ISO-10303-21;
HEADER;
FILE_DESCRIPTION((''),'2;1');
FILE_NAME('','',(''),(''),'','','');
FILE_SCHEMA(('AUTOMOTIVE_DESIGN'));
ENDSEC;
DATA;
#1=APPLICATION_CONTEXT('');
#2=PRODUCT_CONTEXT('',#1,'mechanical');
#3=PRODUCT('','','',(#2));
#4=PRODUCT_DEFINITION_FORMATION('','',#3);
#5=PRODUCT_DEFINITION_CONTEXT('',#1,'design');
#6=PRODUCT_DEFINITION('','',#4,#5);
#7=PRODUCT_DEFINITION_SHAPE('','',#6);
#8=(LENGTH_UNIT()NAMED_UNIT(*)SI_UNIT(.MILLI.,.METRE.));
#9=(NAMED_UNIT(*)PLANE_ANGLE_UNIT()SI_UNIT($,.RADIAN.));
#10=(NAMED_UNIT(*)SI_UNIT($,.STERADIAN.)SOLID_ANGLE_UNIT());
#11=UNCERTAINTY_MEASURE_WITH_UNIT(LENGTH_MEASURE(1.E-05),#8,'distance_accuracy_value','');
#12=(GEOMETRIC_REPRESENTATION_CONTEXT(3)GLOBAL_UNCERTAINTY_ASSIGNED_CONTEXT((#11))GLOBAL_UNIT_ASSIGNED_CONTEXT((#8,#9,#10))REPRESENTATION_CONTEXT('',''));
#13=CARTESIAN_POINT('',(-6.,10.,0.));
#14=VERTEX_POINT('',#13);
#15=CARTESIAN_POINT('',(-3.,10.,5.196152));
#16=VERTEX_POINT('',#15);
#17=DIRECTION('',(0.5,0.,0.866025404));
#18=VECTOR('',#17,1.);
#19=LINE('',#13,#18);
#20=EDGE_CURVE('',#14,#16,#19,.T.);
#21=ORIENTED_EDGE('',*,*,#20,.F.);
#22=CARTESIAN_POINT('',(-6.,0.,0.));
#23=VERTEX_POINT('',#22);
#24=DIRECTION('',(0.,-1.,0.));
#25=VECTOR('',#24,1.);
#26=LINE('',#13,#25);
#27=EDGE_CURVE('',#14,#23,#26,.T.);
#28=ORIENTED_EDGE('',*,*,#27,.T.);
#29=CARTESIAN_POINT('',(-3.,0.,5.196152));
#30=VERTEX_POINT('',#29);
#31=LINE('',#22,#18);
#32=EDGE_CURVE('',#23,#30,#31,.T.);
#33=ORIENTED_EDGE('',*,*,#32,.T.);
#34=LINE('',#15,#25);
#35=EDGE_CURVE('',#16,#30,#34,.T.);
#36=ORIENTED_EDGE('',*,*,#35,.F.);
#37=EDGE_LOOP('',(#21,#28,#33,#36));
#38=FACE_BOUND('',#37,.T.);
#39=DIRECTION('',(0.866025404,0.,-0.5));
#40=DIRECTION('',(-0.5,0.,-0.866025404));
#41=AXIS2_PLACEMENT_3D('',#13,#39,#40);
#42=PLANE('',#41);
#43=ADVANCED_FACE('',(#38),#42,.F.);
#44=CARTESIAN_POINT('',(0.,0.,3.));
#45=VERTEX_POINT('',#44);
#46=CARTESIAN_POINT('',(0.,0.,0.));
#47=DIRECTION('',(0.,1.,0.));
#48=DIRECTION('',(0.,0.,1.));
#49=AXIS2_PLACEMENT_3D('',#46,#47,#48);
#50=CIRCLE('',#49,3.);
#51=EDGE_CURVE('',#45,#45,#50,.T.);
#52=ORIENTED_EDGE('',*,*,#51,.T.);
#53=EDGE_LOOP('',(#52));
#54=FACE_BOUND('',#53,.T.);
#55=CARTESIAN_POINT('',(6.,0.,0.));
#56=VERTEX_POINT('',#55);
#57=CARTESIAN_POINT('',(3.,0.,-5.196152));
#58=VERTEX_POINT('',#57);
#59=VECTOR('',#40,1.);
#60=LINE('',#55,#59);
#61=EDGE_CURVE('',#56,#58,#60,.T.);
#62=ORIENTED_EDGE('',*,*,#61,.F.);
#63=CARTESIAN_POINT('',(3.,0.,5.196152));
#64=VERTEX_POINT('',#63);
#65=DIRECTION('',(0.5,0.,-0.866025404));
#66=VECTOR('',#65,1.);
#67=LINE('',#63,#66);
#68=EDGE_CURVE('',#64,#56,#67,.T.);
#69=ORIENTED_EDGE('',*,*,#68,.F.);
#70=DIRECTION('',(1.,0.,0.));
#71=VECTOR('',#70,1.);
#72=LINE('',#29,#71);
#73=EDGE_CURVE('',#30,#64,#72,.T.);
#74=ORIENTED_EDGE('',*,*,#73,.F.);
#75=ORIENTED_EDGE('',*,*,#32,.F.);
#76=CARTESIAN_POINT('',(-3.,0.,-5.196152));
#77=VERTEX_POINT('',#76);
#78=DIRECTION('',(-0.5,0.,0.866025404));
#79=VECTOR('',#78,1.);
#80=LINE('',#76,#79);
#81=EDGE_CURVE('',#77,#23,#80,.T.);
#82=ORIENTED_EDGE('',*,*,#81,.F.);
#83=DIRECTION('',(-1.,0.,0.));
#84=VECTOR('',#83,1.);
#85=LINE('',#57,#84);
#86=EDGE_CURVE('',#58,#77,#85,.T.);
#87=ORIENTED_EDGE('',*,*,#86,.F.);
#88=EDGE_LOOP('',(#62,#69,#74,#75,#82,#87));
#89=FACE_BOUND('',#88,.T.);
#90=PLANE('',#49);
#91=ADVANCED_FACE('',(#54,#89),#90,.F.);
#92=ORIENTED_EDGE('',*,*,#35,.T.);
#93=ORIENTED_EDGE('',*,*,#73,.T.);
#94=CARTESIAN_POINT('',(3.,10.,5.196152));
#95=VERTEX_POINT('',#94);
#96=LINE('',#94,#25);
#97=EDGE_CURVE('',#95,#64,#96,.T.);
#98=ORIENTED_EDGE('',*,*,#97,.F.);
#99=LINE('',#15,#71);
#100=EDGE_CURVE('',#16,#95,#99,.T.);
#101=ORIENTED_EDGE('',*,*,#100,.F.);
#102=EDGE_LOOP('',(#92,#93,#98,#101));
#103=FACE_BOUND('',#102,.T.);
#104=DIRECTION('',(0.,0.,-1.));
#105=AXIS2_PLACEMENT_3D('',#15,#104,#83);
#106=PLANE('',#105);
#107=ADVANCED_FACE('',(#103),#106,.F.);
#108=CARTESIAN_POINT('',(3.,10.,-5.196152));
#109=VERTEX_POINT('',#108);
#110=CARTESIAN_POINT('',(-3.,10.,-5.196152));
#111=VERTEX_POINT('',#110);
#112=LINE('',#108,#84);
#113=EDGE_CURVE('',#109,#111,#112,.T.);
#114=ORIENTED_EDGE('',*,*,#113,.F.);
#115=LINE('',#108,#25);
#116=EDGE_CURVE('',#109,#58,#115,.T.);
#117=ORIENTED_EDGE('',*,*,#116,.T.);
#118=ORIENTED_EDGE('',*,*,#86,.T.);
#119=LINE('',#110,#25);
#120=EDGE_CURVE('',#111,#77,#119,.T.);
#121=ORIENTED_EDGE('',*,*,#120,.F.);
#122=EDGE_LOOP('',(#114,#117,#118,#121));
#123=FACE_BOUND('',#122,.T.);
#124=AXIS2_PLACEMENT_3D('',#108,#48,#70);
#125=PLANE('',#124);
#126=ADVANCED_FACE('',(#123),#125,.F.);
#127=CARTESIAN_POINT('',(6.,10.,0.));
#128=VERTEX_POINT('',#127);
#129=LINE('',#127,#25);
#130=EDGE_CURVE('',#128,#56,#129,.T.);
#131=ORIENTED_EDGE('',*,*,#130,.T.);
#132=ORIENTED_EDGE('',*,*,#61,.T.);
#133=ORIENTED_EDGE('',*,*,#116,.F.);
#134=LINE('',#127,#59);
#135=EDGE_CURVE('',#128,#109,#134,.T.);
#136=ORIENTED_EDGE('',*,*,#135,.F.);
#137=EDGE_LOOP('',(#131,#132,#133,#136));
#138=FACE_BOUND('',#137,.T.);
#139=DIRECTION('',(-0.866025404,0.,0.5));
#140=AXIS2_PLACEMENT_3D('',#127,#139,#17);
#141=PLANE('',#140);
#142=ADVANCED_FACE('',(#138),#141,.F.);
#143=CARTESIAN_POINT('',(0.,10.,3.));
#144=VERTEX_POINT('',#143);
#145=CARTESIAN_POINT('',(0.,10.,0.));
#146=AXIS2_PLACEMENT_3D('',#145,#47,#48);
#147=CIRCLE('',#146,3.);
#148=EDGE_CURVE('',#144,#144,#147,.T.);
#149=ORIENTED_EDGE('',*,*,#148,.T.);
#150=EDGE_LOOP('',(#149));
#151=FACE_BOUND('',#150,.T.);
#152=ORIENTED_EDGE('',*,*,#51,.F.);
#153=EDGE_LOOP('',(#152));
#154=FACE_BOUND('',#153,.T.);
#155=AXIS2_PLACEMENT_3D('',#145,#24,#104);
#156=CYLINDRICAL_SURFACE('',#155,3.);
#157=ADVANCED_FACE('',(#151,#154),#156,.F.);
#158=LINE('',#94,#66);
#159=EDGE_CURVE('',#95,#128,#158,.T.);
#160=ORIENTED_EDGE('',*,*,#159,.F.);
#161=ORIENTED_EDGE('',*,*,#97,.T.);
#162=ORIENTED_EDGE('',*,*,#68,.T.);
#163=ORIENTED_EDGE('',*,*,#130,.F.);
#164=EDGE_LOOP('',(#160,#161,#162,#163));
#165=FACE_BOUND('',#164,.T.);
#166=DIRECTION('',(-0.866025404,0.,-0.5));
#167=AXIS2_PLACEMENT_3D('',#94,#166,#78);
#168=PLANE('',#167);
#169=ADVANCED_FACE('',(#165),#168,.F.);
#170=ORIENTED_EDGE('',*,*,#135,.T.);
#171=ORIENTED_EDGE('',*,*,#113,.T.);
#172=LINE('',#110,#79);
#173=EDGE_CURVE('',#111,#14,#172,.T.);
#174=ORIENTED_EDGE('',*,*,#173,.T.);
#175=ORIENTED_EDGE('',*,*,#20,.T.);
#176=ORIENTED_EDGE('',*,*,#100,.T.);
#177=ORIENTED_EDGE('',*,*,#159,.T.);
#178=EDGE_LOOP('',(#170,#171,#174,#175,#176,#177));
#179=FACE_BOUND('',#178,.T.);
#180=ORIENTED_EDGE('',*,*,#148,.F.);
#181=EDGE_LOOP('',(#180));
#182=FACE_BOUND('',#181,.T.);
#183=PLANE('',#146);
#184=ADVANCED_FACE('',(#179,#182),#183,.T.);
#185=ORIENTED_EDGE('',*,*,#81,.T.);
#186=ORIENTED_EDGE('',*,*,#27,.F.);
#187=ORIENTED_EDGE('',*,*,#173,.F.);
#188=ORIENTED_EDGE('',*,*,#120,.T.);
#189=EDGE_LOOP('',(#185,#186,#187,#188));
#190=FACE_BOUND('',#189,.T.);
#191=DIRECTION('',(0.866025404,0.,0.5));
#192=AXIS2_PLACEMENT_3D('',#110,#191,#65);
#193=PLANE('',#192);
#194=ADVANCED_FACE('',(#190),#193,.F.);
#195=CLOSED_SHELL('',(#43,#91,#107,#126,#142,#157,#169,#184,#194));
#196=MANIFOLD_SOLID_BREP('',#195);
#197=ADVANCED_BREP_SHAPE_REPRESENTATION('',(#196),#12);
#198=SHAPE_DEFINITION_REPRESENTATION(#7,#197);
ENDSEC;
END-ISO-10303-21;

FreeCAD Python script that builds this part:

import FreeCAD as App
import Part
import Sketcher

V = App.Vector
Q = App.Units.Quantity


def add_polygon(sketch, points):
    """Adds a closed chain of lines whose ends are joined by coincident constraints."""
    first, n = sketch.GeometryCount, len(points)
    for a, b in zip(points, points[1:] + points[:1]):
        sketch.addGeometry(Part.LineSegment(App.Vector(*a, 0), App.Vector(*b, 0)), False)
    for i in range(n):
        sketch.addConstraint(Sketcher.Constraint("Coincident", first + i, 2, first + (i + 1) % n, 1))

doc = App.newDocument("Part")
body = doc.addObject("PartDesign::Body", "Body")

sketch1 = doc.addObject("Sketcher::SketchObject", "Sketch")
body.addObject(sketch1)
sketch1.AttachmentSupport = (doc.XZ_Plane, [""])
sketch1.MapMode = "FlatFace"
add_polygon(sketch1, [(-6, 0), (-3, 5.2), (3, 5.2), (6, 0), (3, -5.2), (-3, -5.2)])
sketch1.addGeometry(Part.Circle(V(0, 0, 0), V(0, 0, 1), 3), False)
sketch1.addConstraint(Sketcher.Constraint("Horizontal", 1))
sketch1.addConstraint(Sketcher.Constraint("Horizontal", 4))
sketch1.addConstraint(Sketcher.Constraint("Coincident", 6, 3, -1, 1))
sketch1.addConstraint(Sketcher.Constraint("Symmetric", 0, 2, 3, 2, -1, 1))
sketch1.addConstraint(Sketcher.Constraint("Symmetric", 2, 2, 5, 2, -1, 1))
sketch1.addConstraint(Sketcher.Constraint("PointOnObject", 2, 2, -1))
sketch1.addConstraint(Sketcher.Constraint("Parallel", 2, 5))
sketch1.addConstraint(Sketcher.Constraint("Vertical", 1, 2, 3, 2))
sketch1.addConstraint(Sketcher.Constraint("Diameter", 6, Q("6 mm")))
sketch1.addConstraint(Sketcher.Constraint("DistanceX", 1, 1, 1, 2, Q("6 mm")))
sketch1.addConstraint(Sketcher.Constraint("Angle", 0, Q("60 deg")))
sketch1.addConstraint(Sketcher.Constraint("Distance", 0, Q("6 mm")))
pad1 = doc.addObject("PartDesign::Pad", "Pad")
body.addObject(pad1)
pad1.Profile = sketch1
pad1.Length = 10
pad1.Reversed = True

doc.recompute()
